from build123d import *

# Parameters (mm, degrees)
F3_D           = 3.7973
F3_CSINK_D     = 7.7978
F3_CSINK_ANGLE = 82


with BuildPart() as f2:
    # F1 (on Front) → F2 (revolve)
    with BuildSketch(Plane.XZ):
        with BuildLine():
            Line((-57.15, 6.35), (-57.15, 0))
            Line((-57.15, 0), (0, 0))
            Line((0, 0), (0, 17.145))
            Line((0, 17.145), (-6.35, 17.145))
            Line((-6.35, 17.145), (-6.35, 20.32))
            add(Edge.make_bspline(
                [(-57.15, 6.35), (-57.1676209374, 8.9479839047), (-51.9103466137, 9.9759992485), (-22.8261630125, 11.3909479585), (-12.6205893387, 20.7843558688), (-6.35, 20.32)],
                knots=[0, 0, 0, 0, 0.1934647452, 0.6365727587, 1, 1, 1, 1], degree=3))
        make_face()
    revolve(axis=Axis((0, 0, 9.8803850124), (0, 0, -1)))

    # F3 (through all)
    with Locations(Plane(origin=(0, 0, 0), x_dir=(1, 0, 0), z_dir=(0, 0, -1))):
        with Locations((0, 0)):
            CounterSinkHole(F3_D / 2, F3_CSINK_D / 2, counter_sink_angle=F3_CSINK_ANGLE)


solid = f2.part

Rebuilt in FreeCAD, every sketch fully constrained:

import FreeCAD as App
import Part
import Sketcher

V = App.Vector
Q = App.Units.Quantity

doc = App.newDocument("Part")
body = doc.addObject("PartDesign::Body", "Body")

# Sketch on XZ plane
sketch1 = doc.addObject("Sketcher::SketchObject", "Sketch")
body.addObject(sketch1)
sketch1.AttachmentSupport = (doc.XZ_Plane, [""])
sketch1.MapMode = "FlatFace"
sketch1.addGeometry([
    Part.LineSegment(V(-57.15, 6.35, 0), V(-57.15, 0, 0)),  # 0
    Part.LineSegment(V(-57.15, 0, 0), V(0, 0, 0)),  # 1
    Part.LineSegment(V(0, 0, 0), V(0, 17.145, 0)),  # 2
    Part.LineSegment(V(0, 17.145, 0), V(-6.35, 17.145, 0)),  # 3
    Part.LineSegment(V(-6.35, 17.145, 0), V(-6.35, 20.32, 0)),  # 4
    Part.BSplineCurve([V(-57.15, 6.35, 0), V(-57.167621, 8.947984, 0), V(-51.910347, 9.975999, 0), V(-22.826163, 11.390948, 0), V(-12.620589, 20.784356, 0), V(-6.35, 20.32, 0)], [4, 1, 1, 4], [0, 0.193464745, 0.636572759, 1], False, 3, [1, 1, 1, 1, 1, 1], False),  # 5
], False)
sketch1.addConstraint([
    Sketcher.Constraint("Block", 5),
    Sketcher.Constraint("Coincident", 0, 2, 1, 1),
    Sketcher.Constraint("Coincident", 1, 2, 2, 1),
    Sketcher.Constraint("Coincident", 2, 2, 3, 1),
    Sketcher.Constraint("Coincident", 3, 2, 4, 1),
    Sketcher.Constraint("Coincident", 4, 2, 5, 2),
    Sketcher.Constraint("Coincident", 5, 1, 0, 1),
    Sketcher.Constraint("Vertical", 0),
    Sketcher.Constraint("Horizontal", 1),
    Sketcher.Constraint("Vertical", 2),
    Sketcher.Constraint("Horizontal", 3),
    Sketcher.Constraint("Vertical", 4),
    Sketcher.Constraint("Coincident", 1, 2, -1, 1),
    Sketcher.Constraint("DistanceY", 2, 1, 2, 2, Q("0.675 in")),
])
revolution = doc.addObject("PartDesign::Revolution", "Revolution")
body.addObject(revolution)
revolution.Profile = sketch1
revolution.ReferenceAxis = (sketch1, ["V_Axis"])
revolution.Angle = 360

# Sketch on XY plane
sketch2 = doc.addObject("Sketcher::SketchObject", "Sketch001")
body.addObject(sketch2)
sketch2.AttachmentSupport = (doc.XY_Plane, [""])
sketch2.MapMode = "FlatFace"
sketch2.addGeometry(Part.Circle(V(0, 0, 0), V(0, 0, 1), 1.9), False)
sketch2.addConstraint([
    Sketcher.Constraint("Coincident", 0, 3, -1, 1),
    Sketcher.Constraint("Diameter", 0, Q("0.1495 in")),
])
doc.recompute()
hole = doc.addObject("PartDesign::Hole", "Hole")
body.addObject(hole)
hole.Profile = sketch2
hole.ThreadType = "None"
hole.Diameter = Q("0.1495 in")
hole.DepthType = "ThroughAll"
hole.HoleCutType = "Countersink"
hole.HoleCutDiameter = Q("0.307 in")
hole.HoleCutCountersinkAngle = 82
hole.Reversed = True

doc.recompute()
